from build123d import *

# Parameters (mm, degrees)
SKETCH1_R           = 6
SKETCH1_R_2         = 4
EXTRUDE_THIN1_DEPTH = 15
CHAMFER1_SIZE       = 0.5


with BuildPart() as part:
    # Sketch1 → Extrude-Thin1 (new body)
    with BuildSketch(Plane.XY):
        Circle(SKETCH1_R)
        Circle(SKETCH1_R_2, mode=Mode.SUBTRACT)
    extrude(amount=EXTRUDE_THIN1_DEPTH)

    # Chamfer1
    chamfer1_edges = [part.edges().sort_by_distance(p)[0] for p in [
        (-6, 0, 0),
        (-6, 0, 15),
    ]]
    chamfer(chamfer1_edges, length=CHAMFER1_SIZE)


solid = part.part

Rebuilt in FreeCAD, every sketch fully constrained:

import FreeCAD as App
import Part
import Sketcher

V = App.Vector


def edges_at(feature, points):
    """Names of the edges that pass closest to the given points."""
    edges = feature.Shape.Edges
    near = lambda p: min(range(len(edges)), key=lambda i: edges[i].distToShape(Part.Vertex(*p))[0])
    return sorted({f"Edge{near(p) + 1}" for p in points})

doc = App.newDocument("Part")
params = doc.addObject("Spreadsheet::Sheet", "Params")
for row, (alias, value) in enumerate([
    ("sketch1_diameter", "12 mm"),
    ("sketch1_diameter2", "8 mm"),
    ("pad1_length", "15 mm"),
    ("chamfer_size", "0.5 mm"),
], start=1):
    params.set(f"A{row}", alias)
    params.set(f"B{row}", "=" + value)
    params.setAlias(f"B{row}", alias)

body = doc.addObject("PartDesign::Body", "Body")

# Sketch on XY plane
sketch1 = body.newObject("Sketcher::SketchObject", "Sketch")
sketch1.AttachmentSupport = (doc.getObject("XY_Plane"), [""])
sketch1.MapMode = "FlatFace"
sketch1.addGeometry([
    Part.Circle(V(0, 0, 0), V(0, 0, 1), 6),
    Part.Circle(V(0, 0, 0), V(0, 0, 1), 4),
], False)
sketch1.addConstraint([
    Sketcher.Constraint("Coincident", 0, 3, -1, 1),
    Sketcher.Constraint("Coincident", 1, 3, -1, 1),
    Sketcher.Constraint("Diameter", 0, 12.0),
    Sketcher.Constraint("Diameter", 1, 8.0),
])
sketch1.setExpression("Constraints[2]", "Params.sketch1_diameter")
sketch1.setExpression("Constraints[3]", "Params.sketch1_diameter2")
pad1 = body.newObject("PartDesign::Pad", "Pad")
pad1.Profile = sketch1
pad1.setExpression("Length", "Params.pad1_length")
doc.recompute()

chamfer = body.newObject("PartDesign::Chamfer", "Chamfer")
chamfer.Base = (pad1, edges_at(pad1, [(-6, 0, 0), (-6, 0, 15)]))
chamfer.setExpression("Size", "Params.chamfer_size")

doc.recompute()
